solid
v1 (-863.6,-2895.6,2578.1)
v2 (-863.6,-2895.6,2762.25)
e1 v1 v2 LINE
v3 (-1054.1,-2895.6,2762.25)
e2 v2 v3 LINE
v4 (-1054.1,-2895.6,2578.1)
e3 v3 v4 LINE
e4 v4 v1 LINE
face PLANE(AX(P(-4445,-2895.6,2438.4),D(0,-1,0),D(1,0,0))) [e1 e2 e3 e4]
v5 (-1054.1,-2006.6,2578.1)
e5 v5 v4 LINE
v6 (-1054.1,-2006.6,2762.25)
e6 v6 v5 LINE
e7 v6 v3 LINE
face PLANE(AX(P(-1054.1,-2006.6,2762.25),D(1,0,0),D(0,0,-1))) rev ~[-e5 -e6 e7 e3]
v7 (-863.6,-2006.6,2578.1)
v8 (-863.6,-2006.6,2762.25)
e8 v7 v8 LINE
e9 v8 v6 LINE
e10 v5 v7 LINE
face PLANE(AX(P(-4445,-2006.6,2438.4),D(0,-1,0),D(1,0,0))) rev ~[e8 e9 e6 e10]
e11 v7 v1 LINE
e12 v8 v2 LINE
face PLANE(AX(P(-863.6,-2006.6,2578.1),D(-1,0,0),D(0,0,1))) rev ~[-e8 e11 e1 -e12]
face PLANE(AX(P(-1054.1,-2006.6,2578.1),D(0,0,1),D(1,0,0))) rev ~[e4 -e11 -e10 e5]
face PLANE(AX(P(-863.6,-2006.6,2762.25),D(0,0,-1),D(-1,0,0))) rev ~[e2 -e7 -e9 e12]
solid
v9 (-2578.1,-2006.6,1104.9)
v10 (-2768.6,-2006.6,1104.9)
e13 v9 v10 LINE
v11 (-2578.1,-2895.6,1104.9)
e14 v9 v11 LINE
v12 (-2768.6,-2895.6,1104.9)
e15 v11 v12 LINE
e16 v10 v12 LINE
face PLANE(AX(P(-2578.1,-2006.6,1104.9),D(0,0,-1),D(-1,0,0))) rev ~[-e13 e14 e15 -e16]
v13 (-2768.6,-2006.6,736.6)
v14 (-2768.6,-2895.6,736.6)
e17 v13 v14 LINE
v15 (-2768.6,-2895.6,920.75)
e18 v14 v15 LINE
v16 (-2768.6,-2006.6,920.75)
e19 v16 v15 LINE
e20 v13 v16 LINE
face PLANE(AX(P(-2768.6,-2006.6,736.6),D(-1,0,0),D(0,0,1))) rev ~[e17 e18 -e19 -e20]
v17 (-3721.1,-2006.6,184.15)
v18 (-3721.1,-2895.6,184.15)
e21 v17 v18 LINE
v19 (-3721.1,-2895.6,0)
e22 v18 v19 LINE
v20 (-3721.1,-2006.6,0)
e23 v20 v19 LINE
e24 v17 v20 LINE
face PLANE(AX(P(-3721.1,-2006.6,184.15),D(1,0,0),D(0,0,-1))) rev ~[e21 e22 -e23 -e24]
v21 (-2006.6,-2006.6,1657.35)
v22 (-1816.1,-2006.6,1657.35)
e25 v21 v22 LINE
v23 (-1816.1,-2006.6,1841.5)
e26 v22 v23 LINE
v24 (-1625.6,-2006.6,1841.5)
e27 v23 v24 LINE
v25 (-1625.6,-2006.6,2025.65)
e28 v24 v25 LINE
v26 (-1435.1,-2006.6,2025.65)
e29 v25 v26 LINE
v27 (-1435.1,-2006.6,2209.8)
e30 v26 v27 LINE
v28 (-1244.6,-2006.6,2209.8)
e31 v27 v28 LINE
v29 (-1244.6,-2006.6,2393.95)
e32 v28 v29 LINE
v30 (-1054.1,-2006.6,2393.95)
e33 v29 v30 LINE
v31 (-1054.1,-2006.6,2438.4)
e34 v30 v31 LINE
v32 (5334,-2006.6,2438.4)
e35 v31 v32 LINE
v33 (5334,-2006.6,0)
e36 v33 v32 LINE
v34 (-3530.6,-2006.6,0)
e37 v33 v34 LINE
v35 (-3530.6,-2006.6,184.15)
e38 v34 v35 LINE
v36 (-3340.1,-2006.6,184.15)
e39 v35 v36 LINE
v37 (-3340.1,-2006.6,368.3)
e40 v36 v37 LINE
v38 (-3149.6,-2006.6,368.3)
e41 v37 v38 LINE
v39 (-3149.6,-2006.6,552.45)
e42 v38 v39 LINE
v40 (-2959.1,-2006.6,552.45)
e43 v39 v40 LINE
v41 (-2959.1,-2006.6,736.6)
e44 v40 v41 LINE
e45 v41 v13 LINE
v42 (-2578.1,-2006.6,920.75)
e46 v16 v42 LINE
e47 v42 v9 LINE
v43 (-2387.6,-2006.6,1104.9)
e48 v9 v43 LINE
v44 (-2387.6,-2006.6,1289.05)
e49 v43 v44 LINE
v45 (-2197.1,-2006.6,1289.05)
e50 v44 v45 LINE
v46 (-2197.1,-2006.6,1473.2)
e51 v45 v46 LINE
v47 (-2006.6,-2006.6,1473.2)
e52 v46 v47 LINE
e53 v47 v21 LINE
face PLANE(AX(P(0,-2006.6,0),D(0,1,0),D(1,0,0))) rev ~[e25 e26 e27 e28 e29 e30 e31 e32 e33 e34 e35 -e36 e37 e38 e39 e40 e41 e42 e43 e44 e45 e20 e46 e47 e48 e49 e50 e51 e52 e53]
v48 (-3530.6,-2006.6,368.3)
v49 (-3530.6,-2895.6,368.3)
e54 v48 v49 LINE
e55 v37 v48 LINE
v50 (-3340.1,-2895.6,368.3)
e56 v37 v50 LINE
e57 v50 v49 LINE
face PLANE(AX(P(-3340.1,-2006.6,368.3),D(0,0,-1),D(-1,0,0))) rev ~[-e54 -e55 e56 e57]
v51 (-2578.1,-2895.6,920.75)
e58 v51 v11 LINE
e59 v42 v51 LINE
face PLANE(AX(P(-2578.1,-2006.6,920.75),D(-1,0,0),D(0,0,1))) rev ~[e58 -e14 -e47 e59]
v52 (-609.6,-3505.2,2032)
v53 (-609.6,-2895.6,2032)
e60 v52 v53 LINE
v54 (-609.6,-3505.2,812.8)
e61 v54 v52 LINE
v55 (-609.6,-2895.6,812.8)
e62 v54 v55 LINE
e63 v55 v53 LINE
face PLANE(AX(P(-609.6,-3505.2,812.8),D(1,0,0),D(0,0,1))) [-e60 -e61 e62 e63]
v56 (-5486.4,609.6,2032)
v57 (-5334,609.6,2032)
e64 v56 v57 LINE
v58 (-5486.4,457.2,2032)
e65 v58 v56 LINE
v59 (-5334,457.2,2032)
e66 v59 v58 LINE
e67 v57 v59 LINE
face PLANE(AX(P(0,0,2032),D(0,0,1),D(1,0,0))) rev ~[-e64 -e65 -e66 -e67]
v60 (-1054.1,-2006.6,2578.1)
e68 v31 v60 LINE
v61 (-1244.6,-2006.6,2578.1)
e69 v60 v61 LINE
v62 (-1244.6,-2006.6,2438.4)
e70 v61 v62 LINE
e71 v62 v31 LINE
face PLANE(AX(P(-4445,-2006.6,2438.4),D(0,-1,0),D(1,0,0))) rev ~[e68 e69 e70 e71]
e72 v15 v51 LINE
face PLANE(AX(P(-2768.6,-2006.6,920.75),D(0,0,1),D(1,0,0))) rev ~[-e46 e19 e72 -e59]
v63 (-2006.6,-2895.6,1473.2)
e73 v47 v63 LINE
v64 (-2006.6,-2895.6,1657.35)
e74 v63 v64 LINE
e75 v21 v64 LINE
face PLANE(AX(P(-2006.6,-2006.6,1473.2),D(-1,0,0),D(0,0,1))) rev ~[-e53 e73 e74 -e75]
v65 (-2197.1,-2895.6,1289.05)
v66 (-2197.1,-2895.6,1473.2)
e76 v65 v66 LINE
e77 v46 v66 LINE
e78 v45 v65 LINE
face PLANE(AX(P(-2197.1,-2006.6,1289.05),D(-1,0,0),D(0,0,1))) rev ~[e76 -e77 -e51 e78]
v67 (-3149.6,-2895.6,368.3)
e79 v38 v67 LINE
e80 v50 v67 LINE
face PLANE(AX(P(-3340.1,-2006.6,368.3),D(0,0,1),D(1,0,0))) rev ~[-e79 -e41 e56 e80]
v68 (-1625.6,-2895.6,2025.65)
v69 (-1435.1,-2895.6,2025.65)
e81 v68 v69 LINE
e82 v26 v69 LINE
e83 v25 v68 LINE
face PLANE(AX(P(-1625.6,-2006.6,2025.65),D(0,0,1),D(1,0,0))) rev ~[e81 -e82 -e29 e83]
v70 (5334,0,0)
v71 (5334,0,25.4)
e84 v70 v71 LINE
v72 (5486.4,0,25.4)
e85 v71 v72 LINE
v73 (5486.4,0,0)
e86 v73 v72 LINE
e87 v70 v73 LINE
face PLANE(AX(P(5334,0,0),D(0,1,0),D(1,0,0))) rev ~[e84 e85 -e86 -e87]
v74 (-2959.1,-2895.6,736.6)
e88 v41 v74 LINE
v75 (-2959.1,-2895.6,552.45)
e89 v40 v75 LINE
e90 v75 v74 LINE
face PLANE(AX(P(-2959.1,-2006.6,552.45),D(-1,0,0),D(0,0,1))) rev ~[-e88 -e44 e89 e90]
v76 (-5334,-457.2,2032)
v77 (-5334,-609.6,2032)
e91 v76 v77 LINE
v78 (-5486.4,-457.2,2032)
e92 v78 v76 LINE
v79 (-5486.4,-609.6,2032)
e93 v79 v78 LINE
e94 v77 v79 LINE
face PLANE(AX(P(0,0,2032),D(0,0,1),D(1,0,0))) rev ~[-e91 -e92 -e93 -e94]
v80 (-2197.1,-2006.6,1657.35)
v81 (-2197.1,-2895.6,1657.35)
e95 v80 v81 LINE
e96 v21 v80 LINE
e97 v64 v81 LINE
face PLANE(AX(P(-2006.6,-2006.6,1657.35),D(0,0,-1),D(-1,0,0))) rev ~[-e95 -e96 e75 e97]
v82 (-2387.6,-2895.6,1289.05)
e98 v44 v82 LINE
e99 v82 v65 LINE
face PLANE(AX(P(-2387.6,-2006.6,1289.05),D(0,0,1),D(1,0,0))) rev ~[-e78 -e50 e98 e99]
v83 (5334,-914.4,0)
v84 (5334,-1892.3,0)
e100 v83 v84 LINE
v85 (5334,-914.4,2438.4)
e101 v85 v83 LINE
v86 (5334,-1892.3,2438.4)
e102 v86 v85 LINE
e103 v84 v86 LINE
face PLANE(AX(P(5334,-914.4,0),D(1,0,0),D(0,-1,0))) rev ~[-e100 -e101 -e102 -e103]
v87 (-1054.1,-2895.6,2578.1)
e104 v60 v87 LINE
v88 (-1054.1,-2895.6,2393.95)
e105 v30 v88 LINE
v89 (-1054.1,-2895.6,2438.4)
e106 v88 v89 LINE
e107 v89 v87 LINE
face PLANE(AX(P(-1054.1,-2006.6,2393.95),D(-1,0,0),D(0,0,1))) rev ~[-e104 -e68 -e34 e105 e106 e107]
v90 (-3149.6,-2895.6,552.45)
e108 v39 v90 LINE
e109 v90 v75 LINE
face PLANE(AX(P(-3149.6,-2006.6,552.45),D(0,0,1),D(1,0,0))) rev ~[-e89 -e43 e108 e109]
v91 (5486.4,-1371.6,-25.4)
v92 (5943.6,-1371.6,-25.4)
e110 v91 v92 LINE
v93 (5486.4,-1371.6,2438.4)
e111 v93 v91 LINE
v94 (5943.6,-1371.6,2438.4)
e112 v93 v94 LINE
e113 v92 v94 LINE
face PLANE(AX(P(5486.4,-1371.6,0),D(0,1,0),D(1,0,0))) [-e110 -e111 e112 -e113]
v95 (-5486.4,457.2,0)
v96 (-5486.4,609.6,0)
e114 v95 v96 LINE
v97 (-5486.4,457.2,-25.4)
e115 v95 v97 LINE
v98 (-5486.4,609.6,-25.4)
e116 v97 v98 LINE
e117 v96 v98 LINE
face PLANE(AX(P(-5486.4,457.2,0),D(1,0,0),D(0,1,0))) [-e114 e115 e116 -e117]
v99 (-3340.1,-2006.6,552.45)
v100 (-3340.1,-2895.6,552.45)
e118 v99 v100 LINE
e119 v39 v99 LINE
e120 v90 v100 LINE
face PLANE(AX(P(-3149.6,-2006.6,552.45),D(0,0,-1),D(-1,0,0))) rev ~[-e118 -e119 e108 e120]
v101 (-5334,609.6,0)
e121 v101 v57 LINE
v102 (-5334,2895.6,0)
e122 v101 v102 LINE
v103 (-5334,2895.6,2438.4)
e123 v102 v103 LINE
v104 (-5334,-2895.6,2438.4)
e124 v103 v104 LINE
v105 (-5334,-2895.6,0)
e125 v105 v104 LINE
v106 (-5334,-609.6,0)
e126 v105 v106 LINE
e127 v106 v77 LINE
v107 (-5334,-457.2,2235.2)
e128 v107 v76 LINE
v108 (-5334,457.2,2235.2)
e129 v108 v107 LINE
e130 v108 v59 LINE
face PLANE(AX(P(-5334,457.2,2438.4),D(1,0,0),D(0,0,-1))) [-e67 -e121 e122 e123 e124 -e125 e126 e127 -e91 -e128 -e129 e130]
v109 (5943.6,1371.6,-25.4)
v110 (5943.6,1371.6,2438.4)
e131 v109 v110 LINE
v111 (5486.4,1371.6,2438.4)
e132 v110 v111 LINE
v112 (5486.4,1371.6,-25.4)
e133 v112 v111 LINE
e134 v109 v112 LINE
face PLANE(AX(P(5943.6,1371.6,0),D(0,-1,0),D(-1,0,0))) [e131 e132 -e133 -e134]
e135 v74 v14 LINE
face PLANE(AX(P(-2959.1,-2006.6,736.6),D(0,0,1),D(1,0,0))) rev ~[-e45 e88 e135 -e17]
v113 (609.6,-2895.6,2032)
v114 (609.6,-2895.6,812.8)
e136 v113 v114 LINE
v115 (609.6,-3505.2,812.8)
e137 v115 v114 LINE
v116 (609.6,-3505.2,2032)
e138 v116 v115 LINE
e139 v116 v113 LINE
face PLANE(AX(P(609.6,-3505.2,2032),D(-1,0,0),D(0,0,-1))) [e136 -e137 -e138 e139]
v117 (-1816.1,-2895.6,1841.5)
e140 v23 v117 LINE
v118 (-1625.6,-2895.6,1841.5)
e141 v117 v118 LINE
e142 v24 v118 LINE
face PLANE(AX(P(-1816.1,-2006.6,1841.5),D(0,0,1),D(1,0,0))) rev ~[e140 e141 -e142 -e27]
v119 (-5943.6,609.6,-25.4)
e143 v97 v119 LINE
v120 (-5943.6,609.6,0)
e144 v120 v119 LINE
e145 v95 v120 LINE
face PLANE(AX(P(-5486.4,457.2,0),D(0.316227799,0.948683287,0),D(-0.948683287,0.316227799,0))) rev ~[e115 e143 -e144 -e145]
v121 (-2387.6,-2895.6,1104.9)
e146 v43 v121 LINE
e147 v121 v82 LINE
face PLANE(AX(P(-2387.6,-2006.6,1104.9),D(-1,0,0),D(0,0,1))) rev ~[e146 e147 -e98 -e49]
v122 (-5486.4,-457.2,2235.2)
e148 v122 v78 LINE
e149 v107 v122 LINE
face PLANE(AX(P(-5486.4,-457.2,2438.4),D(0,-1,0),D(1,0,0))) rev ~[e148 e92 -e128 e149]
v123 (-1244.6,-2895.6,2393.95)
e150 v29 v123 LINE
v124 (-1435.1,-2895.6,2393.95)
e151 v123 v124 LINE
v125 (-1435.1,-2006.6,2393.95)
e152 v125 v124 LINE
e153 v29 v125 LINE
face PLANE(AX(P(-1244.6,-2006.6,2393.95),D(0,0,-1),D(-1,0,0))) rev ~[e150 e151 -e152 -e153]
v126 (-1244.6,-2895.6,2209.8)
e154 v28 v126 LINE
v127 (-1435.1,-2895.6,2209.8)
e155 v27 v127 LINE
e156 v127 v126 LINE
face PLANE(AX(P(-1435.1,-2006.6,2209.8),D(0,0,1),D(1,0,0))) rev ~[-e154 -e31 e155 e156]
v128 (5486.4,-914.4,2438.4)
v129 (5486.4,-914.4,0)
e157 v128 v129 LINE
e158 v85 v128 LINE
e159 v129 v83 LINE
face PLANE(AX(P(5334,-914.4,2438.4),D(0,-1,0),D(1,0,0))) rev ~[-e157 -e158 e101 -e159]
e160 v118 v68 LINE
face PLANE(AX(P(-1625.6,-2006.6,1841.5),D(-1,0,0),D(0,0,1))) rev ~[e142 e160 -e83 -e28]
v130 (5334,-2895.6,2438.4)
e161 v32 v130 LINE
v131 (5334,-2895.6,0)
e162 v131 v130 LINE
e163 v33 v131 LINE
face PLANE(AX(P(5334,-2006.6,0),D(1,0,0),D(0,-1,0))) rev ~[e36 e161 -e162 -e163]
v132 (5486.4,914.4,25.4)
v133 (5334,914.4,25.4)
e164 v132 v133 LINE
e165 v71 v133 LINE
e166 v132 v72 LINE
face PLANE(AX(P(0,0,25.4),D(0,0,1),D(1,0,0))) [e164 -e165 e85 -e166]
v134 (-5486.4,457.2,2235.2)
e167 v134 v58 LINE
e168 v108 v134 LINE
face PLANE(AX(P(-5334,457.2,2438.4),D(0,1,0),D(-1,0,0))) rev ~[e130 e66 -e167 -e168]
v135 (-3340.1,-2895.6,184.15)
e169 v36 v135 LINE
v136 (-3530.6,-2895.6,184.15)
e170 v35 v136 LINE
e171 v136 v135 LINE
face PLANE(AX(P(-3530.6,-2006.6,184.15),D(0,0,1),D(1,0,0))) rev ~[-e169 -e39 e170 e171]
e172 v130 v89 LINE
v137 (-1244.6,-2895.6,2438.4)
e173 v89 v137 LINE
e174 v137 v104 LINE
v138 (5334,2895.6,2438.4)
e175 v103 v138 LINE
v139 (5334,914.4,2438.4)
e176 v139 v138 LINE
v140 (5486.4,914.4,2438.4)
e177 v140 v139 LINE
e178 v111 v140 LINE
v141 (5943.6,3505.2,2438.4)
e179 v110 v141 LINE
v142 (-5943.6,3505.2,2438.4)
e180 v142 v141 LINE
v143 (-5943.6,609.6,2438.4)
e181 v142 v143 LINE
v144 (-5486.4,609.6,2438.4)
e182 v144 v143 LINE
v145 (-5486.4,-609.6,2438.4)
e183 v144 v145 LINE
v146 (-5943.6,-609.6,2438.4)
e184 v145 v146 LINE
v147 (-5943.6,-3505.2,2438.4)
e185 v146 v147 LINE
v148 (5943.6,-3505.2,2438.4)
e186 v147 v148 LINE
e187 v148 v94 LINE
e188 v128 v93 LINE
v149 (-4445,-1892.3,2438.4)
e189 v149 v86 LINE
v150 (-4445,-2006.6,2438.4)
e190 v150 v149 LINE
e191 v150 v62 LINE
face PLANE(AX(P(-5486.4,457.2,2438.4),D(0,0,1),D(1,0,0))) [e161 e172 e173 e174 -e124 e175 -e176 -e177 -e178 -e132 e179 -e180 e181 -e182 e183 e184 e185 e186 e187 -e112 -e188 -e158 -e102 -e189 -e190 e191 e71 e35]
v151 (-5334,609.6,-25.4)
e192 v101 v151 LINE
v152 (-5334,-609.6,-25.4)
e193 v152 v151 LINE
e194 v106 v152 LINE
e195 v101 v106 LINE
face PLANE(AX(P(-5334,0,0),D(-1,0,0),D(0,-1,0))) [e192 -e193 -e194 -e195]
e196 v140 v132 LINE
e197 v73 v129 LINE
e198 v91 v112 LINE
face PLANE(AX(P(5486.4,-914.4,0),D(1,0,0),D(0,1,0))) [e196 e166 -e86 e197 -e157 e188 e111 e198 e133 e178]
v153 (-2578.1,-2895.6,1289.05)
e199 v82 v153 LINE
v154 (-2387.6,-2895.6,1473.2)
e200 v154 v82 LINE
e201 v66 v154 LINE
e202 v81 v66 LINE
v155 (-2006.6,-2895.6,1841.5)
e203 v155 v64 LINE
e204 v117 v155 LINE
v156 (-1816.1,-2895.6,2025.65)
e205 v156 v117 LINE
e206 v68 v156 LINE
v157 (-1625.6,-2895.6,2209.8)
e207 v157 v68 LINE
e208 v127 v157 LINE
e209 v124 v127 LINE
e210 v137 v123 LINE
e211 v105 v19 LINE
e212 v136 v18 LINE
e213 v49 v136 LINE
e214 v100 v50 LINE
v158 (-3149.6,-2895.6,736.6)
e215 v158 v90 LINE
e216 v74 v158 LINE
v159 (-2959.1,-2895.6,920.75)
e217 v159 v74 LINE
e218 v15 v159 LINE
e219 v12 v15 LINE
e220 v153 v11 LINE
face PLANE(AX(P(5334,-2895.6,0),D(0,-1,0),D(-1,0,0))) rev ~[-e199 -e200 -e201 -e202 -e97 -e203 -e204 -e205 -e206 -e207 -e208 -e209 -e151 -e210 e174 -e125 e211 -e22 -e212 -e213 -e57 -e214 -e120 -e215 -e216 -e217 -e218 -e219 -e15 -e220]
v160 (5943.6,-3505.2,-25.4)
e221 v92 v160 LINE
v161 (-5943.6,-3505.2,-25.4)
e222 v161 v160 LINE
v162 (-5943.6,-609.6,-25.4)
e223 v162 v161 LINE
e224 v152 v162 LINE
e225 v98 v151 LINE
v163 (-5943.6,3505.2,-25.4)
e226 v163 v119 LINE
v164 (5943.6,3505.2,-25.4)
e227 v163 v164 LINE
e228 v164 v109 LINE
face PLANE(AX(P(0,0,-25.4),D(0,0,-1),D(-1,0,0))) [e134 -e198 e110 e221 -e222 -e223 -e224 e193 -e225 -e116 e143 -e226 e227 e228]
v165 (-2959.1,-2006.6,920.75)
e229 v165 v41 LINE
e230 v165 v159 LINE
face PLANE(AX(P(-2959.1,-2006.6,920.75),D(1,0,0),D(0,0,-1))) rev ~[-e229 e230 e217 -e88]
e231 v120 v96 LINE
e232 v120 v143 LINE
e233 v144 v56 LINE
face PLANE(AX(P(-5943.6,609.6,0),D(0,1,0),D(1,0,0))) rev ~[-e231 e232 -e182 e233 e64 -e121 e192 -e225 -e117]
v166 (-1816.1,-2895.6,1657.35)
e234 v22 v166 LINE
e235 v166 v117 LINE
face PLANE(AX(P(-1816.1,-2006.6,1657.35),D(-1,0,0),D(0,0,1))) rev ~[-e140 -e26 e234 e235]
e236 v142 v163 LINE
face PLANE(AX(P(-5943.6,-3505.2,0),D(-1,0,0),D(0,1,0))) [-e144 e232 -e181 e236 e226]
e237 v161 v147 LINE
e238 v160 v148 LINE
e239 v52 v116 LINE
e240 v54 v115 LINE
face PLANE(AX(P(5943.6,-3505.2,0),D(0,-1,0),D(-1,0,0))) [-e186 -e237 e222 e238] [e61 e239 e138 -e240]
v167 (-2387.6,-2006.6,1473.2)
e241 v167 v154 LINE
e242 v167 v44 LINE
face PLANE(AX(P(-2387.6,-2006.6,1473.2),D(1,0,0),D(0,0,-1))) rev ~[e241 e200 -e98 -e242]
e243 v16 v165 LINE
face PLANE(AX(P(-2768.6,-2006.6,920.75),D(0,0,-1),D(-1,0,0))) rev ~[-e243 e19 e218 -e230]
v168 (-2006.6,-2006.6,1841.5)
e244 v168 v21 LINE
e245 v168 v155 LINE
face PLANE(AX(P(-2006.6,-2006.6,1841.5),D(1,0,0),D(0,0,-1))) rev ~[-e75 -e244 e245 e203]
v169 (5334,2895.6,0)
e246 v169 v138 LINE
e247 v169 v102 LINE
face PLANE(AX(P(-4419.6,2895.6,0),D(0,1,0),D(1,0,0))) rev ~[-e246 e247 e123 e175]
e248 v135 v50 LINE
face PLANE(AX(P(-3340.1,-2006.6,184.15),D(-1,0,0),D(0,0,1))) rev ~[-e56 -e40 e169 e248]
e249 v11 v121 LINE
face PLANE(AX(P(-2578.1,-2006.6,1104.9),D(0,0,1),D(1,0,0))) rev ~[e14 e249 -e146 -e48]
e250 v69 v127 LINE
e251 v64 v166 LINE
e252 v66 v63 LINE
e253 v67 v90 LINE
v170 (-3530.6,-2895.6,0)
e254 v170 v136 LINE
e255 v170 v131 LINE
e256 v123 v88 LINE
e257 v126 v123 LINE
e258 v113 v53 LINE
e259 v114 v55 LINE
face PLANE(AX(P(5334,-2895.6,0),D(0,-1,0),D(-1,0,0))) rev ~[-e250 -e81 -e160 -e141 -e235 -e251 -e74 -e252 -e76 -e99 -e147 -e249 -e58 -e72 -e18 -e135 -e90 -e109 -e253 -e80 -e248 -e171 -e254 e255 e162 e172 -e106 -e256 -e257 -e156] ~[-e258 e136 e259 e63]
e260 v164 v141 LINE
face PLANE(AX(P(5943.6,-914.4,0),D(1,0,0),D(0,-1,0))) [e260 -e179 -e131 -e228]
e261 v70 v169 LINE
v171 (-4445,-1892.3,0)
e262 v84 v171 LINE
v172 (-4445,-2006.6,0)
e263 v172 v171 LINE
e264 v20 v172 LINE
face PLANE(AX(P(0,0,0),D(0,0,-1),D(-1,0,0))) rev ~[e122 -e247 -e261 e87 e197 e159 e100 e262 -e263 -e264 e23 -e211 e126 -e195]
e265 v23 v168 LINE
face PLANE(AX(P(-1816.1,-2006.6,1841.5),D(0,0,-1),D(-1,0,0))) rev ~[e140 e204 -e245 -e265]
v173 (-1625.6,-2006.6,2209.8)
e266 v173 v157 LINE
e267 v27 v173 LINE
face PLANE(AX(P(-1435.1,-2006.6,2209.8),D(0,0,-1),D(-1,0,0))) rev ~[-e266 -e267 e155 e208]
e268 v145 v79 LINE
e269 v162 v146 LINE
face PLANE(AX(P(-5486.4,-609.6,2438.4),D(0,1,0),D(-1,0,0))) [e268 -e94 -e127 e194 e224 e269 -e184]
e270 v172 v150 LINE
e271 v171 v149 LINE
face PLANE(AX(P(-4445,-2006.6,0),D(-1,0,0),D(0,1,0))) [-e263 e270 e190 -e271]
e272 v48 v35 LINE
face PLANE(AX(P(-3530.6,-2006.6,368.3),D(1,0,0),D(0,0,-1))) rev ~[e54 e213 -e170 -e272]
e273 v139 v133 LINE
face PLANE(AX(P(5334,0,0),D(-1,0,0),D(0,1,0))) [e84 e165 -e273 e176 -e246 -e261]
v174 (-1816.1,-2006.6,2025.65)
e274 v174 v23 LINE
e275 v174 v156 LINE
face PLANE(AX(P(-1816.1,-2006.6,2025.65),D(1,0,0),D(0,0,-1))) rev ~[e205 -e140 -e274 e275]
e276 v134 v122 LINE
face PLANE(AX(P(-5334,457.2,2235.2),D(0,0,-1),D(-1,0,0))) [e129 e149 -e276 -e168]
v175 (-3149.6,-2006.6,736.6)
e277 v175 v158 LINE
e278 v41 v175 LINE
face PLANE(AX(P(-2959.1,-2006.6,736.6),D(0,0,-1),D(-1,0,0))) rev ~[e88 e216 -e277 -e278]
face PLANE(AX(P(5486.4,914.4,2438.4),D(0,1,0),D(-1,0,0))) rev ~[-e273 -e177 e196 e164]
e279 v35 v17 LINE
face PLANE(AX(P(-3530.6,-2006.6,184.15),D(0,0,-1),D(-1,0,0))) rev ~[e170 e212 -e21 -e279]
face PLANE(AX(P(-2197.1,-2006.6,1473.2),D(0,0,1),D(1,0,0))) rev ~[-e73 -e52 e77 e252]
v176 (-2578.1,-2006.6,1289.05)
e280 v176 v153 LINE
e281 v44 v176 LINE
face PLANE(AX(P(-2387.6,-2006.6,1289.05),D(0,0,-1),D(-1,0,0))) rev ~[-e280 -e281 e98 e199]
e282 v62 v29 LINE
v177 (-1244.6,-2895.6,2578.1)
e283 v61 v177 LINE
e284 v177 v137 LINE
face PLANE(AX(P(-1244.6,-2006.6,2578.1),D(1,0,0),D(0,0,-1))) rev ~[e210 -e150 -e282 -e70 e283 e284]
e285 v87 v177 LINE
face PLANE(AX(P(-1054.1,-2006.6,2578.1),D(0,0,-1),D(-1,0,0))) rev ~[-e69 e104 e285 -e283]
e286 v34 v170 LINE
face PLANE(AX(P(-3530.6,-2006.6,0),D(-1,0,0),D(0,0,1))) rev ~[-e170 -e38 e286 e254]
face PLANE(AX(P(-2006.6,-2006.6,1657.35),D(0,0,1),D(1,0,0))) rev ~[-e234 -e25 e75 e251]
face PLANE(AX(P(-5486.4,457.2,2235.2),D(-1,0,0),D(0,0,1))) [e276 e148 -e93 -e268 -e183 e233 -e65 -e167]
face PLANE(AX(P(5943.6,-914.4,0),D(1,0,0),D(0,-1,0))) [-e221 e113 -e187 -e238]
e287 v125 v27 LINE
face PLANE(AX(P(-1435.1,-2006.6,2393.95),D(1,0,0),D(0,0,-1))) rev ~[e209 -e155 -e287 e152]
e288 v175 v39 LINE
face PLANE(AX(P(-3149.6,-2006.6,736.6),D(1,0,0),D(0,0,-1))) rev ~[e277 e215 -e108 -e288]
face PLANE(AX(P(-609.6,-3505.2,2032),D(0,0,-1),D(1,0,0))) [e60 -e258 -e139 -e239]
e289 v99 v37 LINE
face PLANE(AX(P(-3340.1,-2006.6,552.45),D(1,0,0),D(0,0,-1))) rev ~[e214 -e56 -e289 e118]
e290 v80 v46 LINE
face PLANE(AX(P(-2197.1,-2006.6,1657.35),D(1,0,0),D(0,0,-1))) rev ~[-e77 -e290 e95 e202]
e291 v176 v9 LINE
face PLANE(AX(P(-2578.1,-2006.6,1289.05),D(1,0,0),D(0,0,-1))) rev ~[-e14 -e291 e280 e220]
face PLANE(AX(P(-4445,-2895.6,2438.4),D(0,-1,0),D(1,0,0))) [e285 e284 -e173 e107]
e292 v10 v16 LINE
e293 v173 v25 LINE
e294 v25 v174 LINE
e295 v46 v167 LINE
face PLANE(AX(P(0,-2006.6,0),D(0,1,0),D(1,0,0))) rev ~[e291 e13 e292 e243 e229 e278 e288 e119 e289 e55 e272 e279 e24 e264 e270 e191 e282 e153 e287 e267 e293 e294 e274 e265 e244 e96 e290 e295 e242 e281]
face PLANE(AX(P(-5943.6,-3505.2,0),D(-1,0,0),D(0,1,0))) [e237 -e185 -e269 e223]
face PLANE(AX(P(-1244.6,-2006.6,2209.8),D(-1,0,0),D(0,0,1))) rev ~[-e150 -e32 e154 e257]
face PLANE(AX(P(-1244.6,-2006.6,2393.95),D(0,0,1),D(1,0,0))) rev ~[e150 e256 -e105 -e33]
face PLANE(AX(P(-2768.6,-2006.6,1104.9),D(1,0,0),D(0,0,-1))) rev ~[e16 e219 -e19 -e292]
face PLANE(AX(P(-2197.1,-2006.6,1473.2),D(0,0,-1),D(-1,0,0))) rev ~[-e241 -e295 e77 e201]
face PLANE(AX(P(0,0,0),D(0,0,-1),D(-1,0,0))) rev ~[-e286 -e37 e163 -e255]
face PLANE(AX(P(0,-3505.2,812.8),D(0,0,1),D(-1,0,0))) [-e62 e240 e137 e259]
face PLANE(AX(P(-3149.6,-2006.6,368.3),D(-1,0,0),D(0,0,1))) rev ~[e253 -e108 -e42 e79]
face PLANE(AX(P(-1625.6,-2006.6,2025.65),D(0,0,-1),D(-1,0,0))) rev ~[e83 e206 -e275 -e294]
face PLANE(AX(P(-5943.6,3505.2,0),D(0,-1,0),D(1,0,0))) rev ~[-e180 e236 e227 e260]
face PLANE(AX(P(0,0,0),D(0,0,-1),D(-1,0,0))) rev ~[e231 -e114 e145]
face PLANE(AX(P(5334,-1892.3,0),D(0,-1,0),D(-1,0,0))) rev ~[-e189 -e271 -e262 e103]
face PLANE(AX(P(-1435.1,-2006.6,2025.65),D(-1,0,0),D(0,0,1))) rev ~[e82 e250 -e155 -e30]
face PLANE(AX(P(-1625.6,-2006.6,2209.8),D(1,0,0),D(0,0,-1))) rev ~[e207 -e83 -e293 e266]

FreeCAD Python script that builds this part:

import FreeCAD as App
import Part
import Sketcher
Q = App.Units.Quantity


def add_polygon(sketch, points):
    """Adds a closed chain of lines whose ends are joined by coincident constraints."""
    first, n = sketch.GeometryCount, len(points)
    for a, b in zip(points, points[1:] + points[:1]):
        sketch.addGeometry(Part.LineSegment(App.Vector(*a, 0), App.Vector(*b, 0)), False)
    for i in range(n):
        sketch.addConstraint(Sketcher.Constraint("Coincident", first + i, 2, first + (i + 1) % n, 1))

doc = App.newDocument("Part")
params = doc.addObject("Spreadsheet::Sheet", "Params")
for row, (alias, value) in enumerate([
    ("sketch1_width", "24 in"),
    ("sketch1_width2", "468 in"),
    ("sketch1_height", "35 in"),
    ("sketch1_height2", "114 in"),
    ("sketch1_height3", "102 in"),
    ("pad1_length", "96 in"),
    ("sketch2_width", "468 in"),
    ("sketch2_height", "276 in"),
    ("pad2_length", "1 in"),
    ("sketch3_width", "24 in"),
    ("sketch3_height", "72 in"),
    ("sketch3_height2", "48 in"),
    ("pad3_length", "16 in"),
    ("sketch4_width", "7.5 in"),
    ("sketch4_height", "7.25 in"),
    ("pad4_length", "35 in"),
    ("sketch5_width", "48 in"),
    ("pocket1_length", "24 in"),
    ("sketch6_height", "1 in"),
    ("sketch6_width", "24 in"),
    ("pad5_length", "1 in"),
    ("sketch7_width", "17 in"),
    ("pad6_length", "1 in"),
    ("sketch8_width", "18 in"),
    ("sketch8_height", "108 in"),
    ("pocket2_length", "96 in"),
    ("sketch9_width", "17 in"),
    ("pad7_length", "1 in"),
    ("sketch10_width", "6 in"),
    ("sketch10_height", "72 in"),
    ("pocket3_length", "17 in"),
    ("sketch11_width", "6 in"),
    ("sketch11_width2", "18 in"),
    ("sketch11_height", "36 in"),
    ("pocket4_length", "16 in"),
    ("sketch12_width", "6 in"),
    ("sketch12_height", "8 in"),
    ("pad8_length", "36 in"),
    ("sketch13_width", "17 in"),
    ("pocket5_length", "1 in"),
    ("sketch14_width", "6 in"),
    ("sketch14_height", "36 in"),
    ("pad9_length", "1 in"),
    ("sketch15_width", "18 in"),
    ("sketch15_height", "108 in"),
    ("pocket6_length", "1 in"),
    ("sketch16_width", "6 in"),
    ("sketch16_width2", "24 in"),
    ("pocket7_length", "1 in"),
], start=1):
    params.set(f"A{row}", alias)
    params.set(f"B{row}", "=" + value)
    params.setAlias(f"B{row}", alias)

body = doc.addObject("PartDesign::Body", "Body")
body.AllowCompound = True

# Sketch on XY plane
sketch1 = body.newObject("Sketcher::SketchObject", "Sketch")
sketch1.AttachmentSupport = (doc.getObject("XY_Plane"), [""])
sketch1.MapMode = "FlatFace"
add_polygon(sketch1, [(5334, -1892.3), (-4445, -1892.3), (-4445, -2006.6), (5334, -2006.6), (5334, -2895.6), (-5334, -2895.6), (-5334, -609.6), (-5943.6, -609.6), (-5943.6, -3505.2), (5943.6, -3505.2), (5943.6, -914.4), (5334, -914.4)])  # lines 0-11
add_polygon(sketch1, [(-5943.6, 3505.2), (-5943.6, 609.6), (-5334, 609.6), (-5334, 2895.6), (5334, 2895.6), (5334, 914.4), (5943.6, 914.4), (5943.6, 3505.2)])  # lines 12-19
sketch1.addConstraint([
    Sketcher.Constraint("Horizontal", 0),
    Sketcher.Constraint("Vertical", 1),
    Sketcher.Constraint("Horizontal", 2),
    Sketcher.Constraint("Vertical", 3),
    Sketcher.Constraint("Horizontal", 4),
    Sketcher.Constraint("Vertical", 5),
    Sketcher.Constraint("Horizontal", 6),
    Sketcher.Constraint("Vertical", 7),
    Sketcher.Constraint("Horizontal", 8),
    Sketcher.Constraint("Vertical", 9),
    Sketcher.Constraint("Horizontal", 10),
    Sketcher.Constraint("Vertical", 11),
    Sketcher.Constraint("Vertical", 12),
    Sketcher.Constraint("Horizontal", 13),
    Sketcher.Constraint("Vertical", 14),
    Sketcher.Constraint("Horizontal", 15),
    Sketcher.Constraint("Vertical", 16),
    Sketcher.Constraint("Horizontal", 17),
    Sketcher.Constraint("Vertical", 18),
    Sketcher.Constraint("Horizontal", 19),
    Sketcher.Constraint("Symmetric", 3, 2, 14, 2, -1, 1),
    Sketcher.Constraint("Symmetric", 7, 2, 18, 2, -1, 1),
    Sketcher.Constraint("Symmetric", 6, 2, 12, 2, -1),
    Sketcher.Constraint("Symmetric", 10, 2, 16, 2, -1),
    Sketcher.Constraint("Vertical", 3, 2, 10, 2),
    Sketcher.Constraint("Vertical", 5, 2, 13, 2),
    Sketcher.Constraint("Vertical", 9, 2, 17, 2),
    Sketcher.Constraint("DistanceX", 6, 2, 6, 1, Q("24 in")),
    Sketcher.Constraint("DistanceX", 8, 1, 8, 2, Q("468 in")),
    Sketcher.Constraint("DistanceY", 3, 2, 3, 1, Q("35 in")),
    Sketcher.Constraint("DistanceY", 7, 2, 7, 1, Q("114 in")),
    Sketcher.Constraint("DistanceY", 9, 1, 9, 2, Q("102 in")),
    Sketcher.Constraint("DistanceY", 1, 2, 1, 1, Q("4.5 in")),
    Sketcher.Constraint("DistanceY", 3, 2, -1, 1, Q("114 in")),
    Sketcher.Constraint("DistanceY", 5, 2, -1, 1, Q("24 in")),
    Sketcher.Constraint("DistanceX", 4, 2, 1, 2, Q("35 in")),
])
sketch1.setExpression("Constraints[47]", "Params.sketch1_width")
sketch1.setExpression("Constraints[48]", "Params.sketch1_width2")
sketch1.setExpression("Constraints[49]", "Params.sketch1_height")
sketch1.setExpression("Constraints[50]", "Params.sketch1_height2")
sketch1.setExpression("Constraints[51]", "Params.sketch1_height3")
pad1 = body.newObject("PartDesign::Pad", "Pad")
pad1.Profile = sketch1
pad1.setExpression("Length", "Params.pad1_length")

# Sketch on XY plane
sketch2 = body.newObject("Sketcher::SketchObject", "Sketch001")
sketch2.AttachmentSupport = (doc.getObject("XY_Plane"), [""])
sketch2.MapMode = "FlatFace"
add_polygon(sketch2, [(-5943.6, 3505.2), (5943.6, 3505.2), (5943.6, -3505.2), (-5943.6, -3505.2)])  # lines 0-3
sketch2.addConstraint([
    Sketcher.Constraint("Horizontal", 0),
    Sketcher.Constraint("Vertical", 1),
    Sketcher.Constraint("Horizontal", 2),
    Sketcher.Constraint("Vertical", 3),
    Sketcher.Constraint("Symmetric", 0, 2, 2, 2, -1, 1),
    Sketcher.Constraint("DistanceX", 0, 1, 0, 2, Q("468 in")),
    Sketcher.Constraint("DistanceY", 1, 2, 1, 1, Q("276 in")),
])
sketch2.setExpression("Constraints[9]", "Params.sketch2_width")
sketch2.setExpression("Constraints[10]", "Params.sketch2_height")
pad2 = body.newObject("PartDesign::Pad", "Pad001")
pad2.Profile = sketch2
pad2.setExpression("Length", "Params.pad2_length")
pad2.Reversed = True

# Sketch on XY plane
sketch3 = body.newObject("Sketcher::SketchObject", "Sketch002")
sketch3.AttachmentSupport = (doc.getObject("XY_Plane"), [""])
sketch3.MapMode = "FlatFace"
sketch3.AttachmentOffset = App.Placement(App.Vector(0, 0, 96 * 25.4), App.Rotation())
add_polygon(sketch3, [(5943.6, -914.4), (5943.6, 914.4), (5334, 914.4), (5334, -914.4)])  # lines 0-3
add_polygon(sketch3, [(-5334, 609.6), (-5943.6, 609.6), (-5943.6, -609.6), (-5334, -609.6)])  # lines 4-7
sketch3.addConstraint([
    Sketcher.Constraint("Vertical", 0),
    Sketcher.Constraint("Horizontal", 1),
    Sketcher.Constraint("Vertical", 2),
    Sketcher.Constraint("Horizontal", 3),
    Sketcher.Constraint("Horizontal", 4),
    Sketcher.Constraint("Vertical", 5),
    Sketcher.Constraint("Horizontal", 6),
    Sketcher.Constraint("Vertical", 7),
    Sketcher.Constraint("Equal", 3, 4),
    Sketcher.Constraint("DistanceX", 1, 2, 1, 1, Q("24 in")),
    Sketcher.Constraint("DistanceY", 0, 1, 0, 2, Q("72 in")),
    Sketcher.Constraint("DistanceY", 5, 2, 5, 1, Q("48 in")),
    Sketcher.Constraint("DistanceX", -1, 1, 0, 2, Q("234 in")),
    Sketcher.Constraint("DistanceY", -1, 1, 0, 2, Q("36 in")),
    Sketcher.Constraint("DistanceX", 4, 2, -1, 1, Q("234 in")),
    Sketcher.Constraint("DistanceY", -1, 1, 4, 2, Q("24 in")),
])
sketch3.setExpression("Constraints[17]", "Params.sketch3_width")
sketch3.setExpression("Constraints[18]", "Params.sketch3_height")
sketch3.setExpression("Constraints[19]", "Params.sketch3_height2")
pad3 = body.newObject("PartDesign::Pad", "Pad002")
pad3.Profile = sketch3
pad3.setExpression("Length", "Params.pad3_length")
pad3.Reversed = True

# Sketch on XZ plane
sketch4 = body.newObject("Sketcher::SketchObject", "Sketch003")
sketch4.AttachmentSupport = (doc.getObject("XZ_Plane"), [""])
sketch4.MapMode = "FlatFace"
sketch4.AttachmentOffset = App.Placement(App.Vector(0, 0, 79 * 25.4), App.Rotation())
add_polygon(sketch4, [(-3721.1, 184.15), (-3721.1, 0), (-3530.6, 0), (-3530.6, 184.15)])  # lines 0-3
add_polygon(sketch4, [(-1054.1, 2762.25), (-1054.1, 2578.1), (-863.6, 2578.1), (-863.6, 2762.25)])  # lines 4-7
add_polygon(sketch4, [(-1244.6, 2578.1), (-1244.6, 2393.95), (-1054.1, 2393.95), (-1054.1, 2578.1)])  # lines 8-11
add_polygon(sketch4, [(-1435.1, 2393.95), (-1435.1, 2209.8), (-1244.6, 2209.8), (-1244.6, 2393.95)])  # lines 12-15
add_polygon(sketch4, [(-1625.6, 2209.8), (-1625.6, 2025.65), (-1435.1, 2025.65), (-1435.1, 2209.8)])  # lines 16-19
add_polygon(sketch4, [(-1816.1, 2025.65), (-1816.1, 1841.5), (-1625.6, 1841.5), (-1625.6, 2025.65)])  # lines 20-23
add_polygon(sketch4, [(-2006.6, 1841.5), (-2006.6, 1657.35), (-1816.1, 1657.35), (-1816.1, 1841.5)])  # lines 24-27
add_polygon(sketch4, [(-2197.1, 1657.35), (-2197.1, 1473.2), (-2006.6, 1473.2), (-2006.6, 1657.35)])  # lines 28-31
add_polygon(sketch4, [(-2387.6, 1473.2), (-2387.6, 1289.05), (-2197.1, 1289.05), (-2197.1, 1473.2)])  # lines 32-35
add_polygon(sketch4, [(-2578.1, 1289.05), (-2578.1, 1104.9), (-2387.6, 1104.9), (-2387.6, 1289.05)])  # lines 36-39
add_polygon(sketch4, [(-2768.6, 1104.9), (-2768.6, 920.75), (-2578.1, 920.75), (-2578.1, 1104.9)])  # lines 40-43
add_polygon(sketch4, [(-2959.1, 920.75), (-2959.1, 736.6), (-2768.6, 736.6), (-2768.6, 920.75)])  # lines 44-47
add_polygon(sketch4, [(-3149.6, 736.6), (-3149.6, 552.45), (-2959.1, 552.45), (-2959.1, 736.6)])  # lines 48-51
add_polygon(sketch4, [(-3340.1, 552.45), (-3340.1, 368.3), (-3149.6, 368.3), (-3149.6, 552.45)])  # lines 52-55
add_polygon(sketch4, [(-3530.6, 368.3), (-3530.6, 184.15), (-3340.1, 184.15), (-3340.1, 368.3)])  # lines 56-59
sketch4.addConstraint([
    Sketcher.Constraint("Vertical", 0),
    Sketcher.Constraint("Horizontal", 1),
    Sketcher.Constraint("Vertical", 2),
    Sketcher.Constraint("Horizontal", 3),
    Sketcher.Constraint("Vertical", 4),
    Sketcher.Constraint("Horizontal", 5),
    Sketcher.Constraint("Vertical", 6),
    Sketcher.Constraint("Horizontal", 7),
    Sketcher.Constraint("Vertical", 8),
    Sketcher.Constraint("Horizontal", 9),
    Sketcher.Constraint("Vertical", 10),
    Sketcher.Constraint("Horizontal", 11),
    Sketcher.Constraint("Vertical", 12),
    Sketcher.Constraint("Horizontal", 13),
    Sketcher.Constraint("Vertical", 14),
    Sketcher.Constraint("Horizontal", 15),
    Sketcher.Constraint("Vertical", 16),
    Sketcher.Constraint("Horizontal", 17),
    Sketcher.Constraint("Vertical", 18),
    Sketcher.Constraint("Horizontal", 19),
    Sketcher.Constraint("Vertical", 20),
    Sketcher.Constraint("Horizontal", 21),
    Sketcher.Constraint("Vertical", 22),
    Sketcher.Constraint("Horizontal", 23),
    Sketcher.Constraint("Vertical", 24),
    Sketcher.Constraint("Horizontal", 25),
    Sketcher.Constraint("Vertical", 26),
    Sketcher.Constraint("Horizontal", 27),
    Sketcher.Constraint("Vertical", 28),
    Sketcher.Constraint("Horizontal", 29),
    Sketcher.Constraint("Vertical", 30),
    Sketcher.Constraint("Horizontal", 31),
    Sketcher.Constraint("Vertical", 32),
    Sketcher.Constraint("Horizontal", 33),
    Sketcher.Constraint("Vertical", 34),
    Sketcher.Constraint("Horizontal", 35),
    Sketcher.Constraint("Vertical", 36),
    Sketcher.Constraint("Horizontal", 37),
    Sketcher.Constraint("Vertical", 38),
    Sketcher.Constraint("Horizontal", 39),
    Sketcher.Constraint("Vertical", 40),
    Sketcher.Constraint("Horizontal", 41),
    Sketcher.Constraint("Vertical", 42),
    Sketcher.Constraint("Horizontal", 43),
    Sketcher.Constraint("Vertical", 44),
    Sketcher.Constraint("Horizontal", 45),
    Sketcher.Constraint("Vertical", 46),
    Sketcher.Constraint("Horizontal", 47),
    Sketcher.Constraint("Vertical", 48),
    Sketcher.Constraint("Horizontal", 49),
    Sketcher.Constraint("Vertical", 50),
    Sketcher.Constraint("Horizontal", 51),
    Sketcher.Constraint("Vertical", 52),
    Sketcher.Constraint("Horizontal", 53),
    Sketcher.Constraint("Vertical", 54),
    Sketcher.Constraint("Horizontal", 55),
    Sketcher.Constraint("Vertical", 56),
    Sketcher.Constraint("Horizontal", 57),
    Sketcher.Constraint("Vertical", 58),
    Sketcher.Constraint("Horizontal", 59),
    Sketcher.Constraint("Coincident", 10, 2, 4, 2),
    Sketcher.Constraint("Coincident", 14, 2, 8, 2),
    Sketcher.Constraint("Coincident", 18, 2, 12, 2),
    Sketcher.Constraint("Coincident", 22, 2, 16, 2),
    Sketcher.Constraint("Coincident", 26, 2, 20, 2),
    Sketcher.Constraint("Coincident", 30, 2, 24, 2),
    Sketcher.Constraint("Coincident", 34, 2, 28, 2),
    Sketcher.Constraint("Coincident", 38, 2, 32, 2),
    Sketcher.Constraint("Coincident", 42, 2, 36, 2),
    Sketcher.Constraint("Coincident", 46, 2, 40, 2),
    Sketcher.Constraint("Coincident", 50, 2, 44, 2),
    Sketcher.Constraint("Coincident", 54, 2, 48, 2),
    Sketcher.Constraint("Coincident", 56, 2, 2, 2),
    Sketcher.Constraint("Coincident", 58, 2, 52, 2),
    Sketcher.Constraint("PointOnObject", 0, 2, -1),
    Sketcher.Constraint("Equal", 3, 5),
    Sketcher.Constraint("Equal", 7, 9),
    Sketcher.Constraint("Equal", 11, 13),
    Sketcher.Constraint("Equal", 15, 17),
    Sketcher.Constraint("Equal", 19, 21),
    Sketcher.Constraint("Equal", 23, 25),
    Sketcher.Constraint("Equal", 27, 29),
    Sketcher.Constraint("Equal", 31, 33),
    Sketcher.Constraint("Equal", 35, 37),
    Sketcher.Constraint("Equal", 39, 41),
    Sketcher.Constraint("Equal", 43, 45),
    Sketcher.Constraint("Equal", 47, 49),
    Sketcher.Constraint("Equal", 51, 53),
    Sketcher.Constraint("Equal", 55, 57),
    Sketcher.Constraint("Equal", 2, 4),
    Sketcher.Constraint("Equal", 6, 8),
    Sketcher.Constraint("Equal", 10, 12),
    Sketcher.Constraint("Equal", 14, 16),
    Sketcher.Constraint("Equal", 18, 20),
    Sketcher.Constraint("Equal", 22, 24),
    Sketcher.Constraint("Equal", 26, 28),
    Sketcher.Constraint("Equal", 30, 32),
    Sketcher.Constraint("Equal", 34, 36),
    Sketcher.Constraint("Equal", 38, 40),
    Sketcher.Constraint("Equal", 42, 44),
    Sketcher.Constraint("Equal", 46, 48),
    Sketcher.Constraint("Equal", 50, 52),
    Sketcher.Constraint("Equal", 54, 56),
    Sketcher.Constraint("DistanceX", 1, 1, 1, 2, Q("7.5 in")),
    Sketcher.Constraint("DistanceY", 0, 2, 0, 1, Q("7.25 in")),
    Sketcher.Constraint("DistanceX", 1, 2, -1, 1, Q("139 in")),
])
sketch4.setExpression("Constraints[163]", "Params.sketch4_width")
sketch4.setExpression("Constraints[164]", "Params.sketch4_height")
pad4 = body.newObject("PartDesign::Pad", "Pad003")
pad4.Profile = sketch4
pad4.setExpression("Length", "Params.pad4_length")

# Sketch on XZ plane
sketch5 = body.newObject("Sketcher::SketchObject", "Sketch004")
sketch5.AttachmentSupport = (doc.getObject("XZ_Plane"), [""])
sketch5.MapMode = "FlatFace"
sketch5.AttachmentOffset = App.Placement(App.Vector(0, 0, 138 * 25.4), App.Rotation())
add_polygon(sketch5, [(-609.6, 2032), (-609.6, 812.8), (609.6, 812.8), (609.6, 2032)])  # lines 0-3
sketch5.addConstraint([
    Sketcher.Constraint("Vertical", 0),
    Sketcher.Constraint("Horizontal", 1),
    Sketcher.Constraint("Vertical", 2),
    Sketcher.Constraint("Horizontal", 3),
    Sketcher.Constraint("Equal", 3, 0),
    Sketcher.Constraint("DistanceX", 1, 1, 1, 2, Q("48 in")),
    Sketcher.Constraint("DistanceY", -1, 1, 0, 2, Q("32 in")),
    Sketcher.Constraint("DistanceX", 0, 2, -1, 1, Q("24 in")),
])
sketch5.setExpression("Constraints[9]", "Params.sketch5_width")
pocket1 = body.newObject("PartDesign::Pocket", "Pocket")
pocket1.Profile = sketch5
pocket1.setExpression("Length", "Params.pocket1_length")

# Sketch on XY plane
sketch6 = body.newObject("Sketcher::SketchObject", "Sketch005")
sketch6.AttachmentSupport = (doc.getObject("XY_Plane"), [""])
sketch6.MapMode = "FlatFace"
sketch6.AttachmentOffset = App.Placement(App.Vector(0, 0, 80 * 25.4), App.Rotation())
add_polygon(sketch6, [(5943.6, -12.7), (5334, -12.7), (5334, 12.7), (5943.6, 12.7)])  # lines 0-3
sketch6.addConstraint([
    Sketcher.Constraint("Horizontal", 0),
    Sketcher.Constraint("Vertical", 1),
    Sketcher.Constraint("Horizontal", 2),
    Sketcher.Constraint("Vertical", 3),
    Sketcher.Constraint("DistanceY", 1, 1, 1, 2, Q("1 in")),
    Sketcher.Constraint("DistanceX", 0, 2, 0, 1, Q("24 in")),
    Sketcher.Constraint("DistanceX", -1, 1, 0, 2, Q("210 in")),
    Sketcher.Constraint("DistanceY", 0, 2, -1, 1, Q("0.5 in")),
])
sketch6.setExpression("Constraints[8]", "Params.sketch6_height")
sketch6.setExpression("Constraints[9]", "Params.sketch6_width")
pad5 = body.newObject("PartDesign::Pad", "Pad004")
pad5.Profile = sketch6
pad5.setExpression("Length", "Params.pad5_length")
pad5.Reversed = True

# Sketch on XY plane
sketch7 = body.newObject("Sketcher::SketchObject", "Sketch006")
sketch7.AttachmentSupport = (doc.getObject("XY_Plane"), [""])
sketch7.MapMode = "FlatFace"
add_polygon(sketch7, [(5549.9, -673.1), (5118.1, -241.3), (5118.1, -673.1)])  # lines 0-2
add_polygon(sketch7, [(5549.9, 241.3), (5118.1, 673.1), (5118.1, 241.3)])  # lines 3-5
sketch7.addConstraint([
    Sketcher.Constraint("Vertical", 1),
    Sketcher.Constraint("Horizontal", 2),
    Sketcher.Constraint("Vertical", 4),
    Sketcher.Constraint("Horizontal", 5),
    Sketcher.Constraint("Symmetric", 1, 2, 3, 2, -1),
    Sketcher.Constraint("Parallel", 0, 3),
    Sketcher.Constraint("Vertical", 2, 2, 5, 2),
    Sketcher.Constraint("Equal", 5, 1),
    Sketcher.Constraint("DistanceX", 2, 1, 2, 2, Q("17 in")),
    Sketcher.Constraint("DistanceY", 0, 2, 3, 2, Q("36 in")),
    Sketcher.Constraint("DistanceX", -1, 1, 0, 2, Q("201.5 in")),
])
sketch7.setExpression("Constraints[14]", "Params.sketch7_width")
pad6 = body.newObject("PartDesign::Pad", "Pad005")
pad6.Profile = sketch7
pad6.setExpression("Length", "Params.pad6_length")

# Sketch on XY plane
sketch8 = body.newObject("Sketcher::SketchObject", "Sketch007")
sketch8.AttachmentSupport = (doc.getObject("XY_Plane"), [""])
sketch8.MapMode = "FlatFace"
add_polygon(sketch8, [(5943.6, 1371.6), (5486.4, 1371.6), (5486.4, -1371.6), (5943.6, -1371.6)])  # lines 0-3
sketch8.addConstraint([
    Sketcher.Constraint("Horizontal", 0),
    Sketcher.Constraint("Vertical", 1),
    Sketcher.Constraint("Horizontal", 2),
    Sketcher.Constraint("Vertical", 3),
    Sketcher.Constraint("DistanceX", 0, 2, 0, 1, Q("18 in")),
    Sketcher.Constraint("DistanceY", 1, 2, 1, 1, Q("108 in")),
    Sketcher.Constraint("DistanceX", -1, 1, 0, 2, Q("216 in")),
    Sketcher.Constraint("DistanceY", -1, 1, 0, 2, Q("54 in")),
])
sketch8.setExpression("Constraints[8]", "Params.sketch8_width")
sketch8.setExpression("Constraints[9]", "Params.sketch8_height")
pocket2 = body.newObject("PartDesign::Pocket", "Pocket001")
pocket2.Profile = sketch8
pocket2.setExpression("Length", "Params.pocket2_length")
pocket2.Reversed = True

# Sketch on XY plane
sketch9 = body.newObject("Sketcher::SketchObject", "Sketch008")
sketch9.AttachmentSupport = (doc.getObject("XY_Plane"), [""])
sketch9.MapMode = "FlatFace"
add_polygon(sketch9, [(5549.9, -673.1), (5118.1, -241.3), (5118.1, -673.1)])  # lines 0-2
add_polygon(sketch9, [(5549.9, 241.3), (5118.1, 673.1), (5118.1, 241.3)])  # lines 3-5
sketch9.addConstraint([
    Sketcher.Constraint("Vertical", 1),
    Sketcher.Constraint("Horizontal", 2),
    Sketcher.Constraint("Vertical", 4),
    Sketcher.Constraint("Horizontal", 5),
    Sketcher.Constraint("Symmetric", 1, 2, 3, 2, -1),
    Sketcher.Constraint("Parallel", 0, 3),
    Sketcher.Constraint("Vertical", 2, 2, 5, 2),
    Sketcher.Constraint("Equal", 5, 1),
    Sketcher.Constraint("DistanceX", 2, 1, 2, 2, Q("17 in")),
    Sketcher.Constraint("DistanceY", 0, 2, 3, 2, Q("36 in")),
    Sketcher.Constraint("DistanceX", -1, 1, 0, 2, Q("201.5 in")),
])
sketch9.setExpression("Constraints[14]", "Params.sketch9_width")
pad7 = body.newObject("PartDesign::Pad", "Pad006")
pad7.Profile = sketch9
pad7.setExpression("Length", "Params.pad7_length")

# Sketch on XY plane
sketch10 = body.newObject("Sketcher::SketchObject", "Sketch009")
sketch10.AttachmentSupport = (doc.getObject("XY_Plane"), [""])
sketch10.MapMode = "FlatFace"
sketch10.AttachmentOffset = App.Placement(App.Vector(0, 0, 96 * 25.4), App.Rotation())
add_polygon(sketch10, [(5486.4, -914.4), (5486.4, 914.4), (5334, 914.4), (5334, -914.4)])  # lines 0-3
sketch10.addConstraint([
    Sketcher.Constraint("Vertical", 0),
    Sketcher.Constraint("Horizontal", 1),
    Sketcher.Constraint("Vertical", 2),
    Sketcher.Constraint("Horizontal", 3),
    Sketcher.Constraint("DistanceX", 1, 2, 1, 1, Q("6 in")),
    Sketcher.Constraint("DistanceY", 0, 1, 0, 2, Q("72 in")),
    Sketcher.Constraint("DistanceX", -1, 1, 0, 2, Q("216 in")),
    Sketcher.Constraint("DistanceY", -1, 1, 0, 2, Q("36 in")),
])
sketch10.setExpression("Constraints[8]", "Params.sketch10_width")
sketch10.setExpression("Constraints[9]", "Params.sketch10_height")
pocket3 = body.newObject("PartDesign::Pocket", "Pocket002")
pocket3.Profile = sketch10
pocket3.setExpression("Length", "Params.pocket3_length")

# Sketch on XY plane
sketch11 = body.newObject("Sketcher::SketchObject", "Sketch010")
sketch11.AttachmentSupport = (doc.getObject("XY_Plane"), [""])
sketch11.MapMode = "FlatFace"
sketch11.AttachmentOffset = App.Placement(App.Vector(0, 0, 96 * 25.4), App.Rotation())
add_polygon(sketch11, [(-5486.4, -457.2), (-5334, -457.2), (-5334, 457.2), (-5486.4, 457.2), (-5486.4, 609.6), (-5943.6, 609.6), (-5943.6, -609.6), (-5486.4, -609.6)])  # lines 0-7
sketch11.addConstraint([
    Sketcher.Constraint("Horizontal", 0),
    Sketcher.Constraint("Vertical", 1),
    Sketcher.Constraint("Horizontal", 2),
    Sketcher.Constraint("Vertical", 3),
    Sketcher.Constraint("Horizontal", 4),
    Sketcher.Constraint("Vertical", 5),
    Sketcher.Constraint("Horizontal", 6),
    Sketcher.Constraint("Vertical", 7),
    Sketcher.Constraint("Symmetric", 3, 2, 6, 2, -1),
    Sketcher.Constraint("Equal", 2, 3),
    Sketcher.Constraint("Equal", 3, 7),
    Sketcher.Constraint("DistanceX", 0, 1, 0, 2, Q("6 in")),
    Sketcher.Constraint("DistanceX", 4, 2, 4, 1, Q("18 in")),
    Sketcher.Constraint("DistanceY", 1, 1, 1, 2, Q("36 in")),
    Sketcher.Constraint("DistanceX", 0, 2, -1, 1, Q("210 in")),
])
sketch11.setExpression("Constraints[19]", "Params.sketch11_width")
sketch11.setExpression("Constraints[20]", "Params.sketch11_width2")
sketch11.setExpression("Constraints[21]", "Params.sketch11_height")
pocket4 = body.newObject("PartDesign::Pocket", "Pocket003")
pocket4.Profile = sketch11
pocket4.setExpression("Length", "Params.pocket4_length")

# Sketch on XZ plane
sketch12 = body.newObject("Sketcher::SketchObject", "Sketch011")
sketch12.AttachmentSupport = (doc.getObject("XZ_Plane"), [""])
sketch12.MapMode = "FlatFace"
sketch12.AttachmentOffset = App.Placement(App.Vector(0, 0, -18 * 25.4), App.Rotation())
add_polygon(sketch12, [(-5334, 2235.2), (-5334, 2438.4), (-5486.4, 2438.4), (-5486.4, 2235.2)])  # lines 0-3
sketch12.addConstraint([
    Sketcher.Constraint("Vertical", 0),
    Sketcher.Constraint("Horizontal", 1),
    Sketcher.Constraint("Vertical", 2),
    Sketcher.Constraint("Horizontal", 3),
    Sketcher.Constraint("DistanceX", 1, 2, 1, 1, Q("6 in")),
    Sketcher.Constraint("DistanceY", 0, 1, 0, 2, Q("8 in")),
    Sketcher.Constraint("DistanceX", 0, 2, -1, 1, Q("210 in")),
    Sketcher.Constraint("DistanceY", -1, 1, 0, 2, Q("96 in")),
])
sketch12.setExpression("Constraints[8]", "Params.sketch12_width")
sketch12.setExpression("Constraints[9]", "Params.sketch12_height")
pad8 = body.newObject("PartDesign::Pad", "Pad007")
pad8.Profile = sketch12
pad8.setExpression("Length", "Params.pad8_length")

# Sketch on XY plane
sketch13 = body.newObject("Sketcher::SketchObject", "Sketch012")
sketch13.AttachmentSupport = (doc.getObject("XY_Plane"), [""])
sketch13.MapMode = "FlatFace"
add_polygon(sketch13, [(5549.9, -673.1), (5118.1, -241.3), (5118.1, -673.1)])  # lines 0-2
add_polygon(sketch13, [(5549.9, 241.3), (5118.1, 673.1), (5118.1, 241.3)])  # lines 3-5
sketch13.addConstraint([
    Sketcher.Constraint("Vertical", 1),
    Sketcher.Constraint("Horizontal", 2),
    Sketcher.Constraint("Vertical", 4),
    Sketcher.Constraint("Horizontal", 5),
    Sketcher.Constraint("Symmetric", 1, 2, 3, 2, -1),
    Sketcher.Constraint("Parallel", 0, 3),
    Sketcher.Constraint("Vertical", 2, 2, 5, 2),
    Sketcher.Constraint("Equal", 5, 1),
    Sketcher.Constraint("DistanceX", 2, 1, 2, 2, Q("17 in")),
    Sketcher.Constraint("DistanceY", 0, 2, 3, 2, Q("36 in")),
    Sketcher.Constraint("DistanceX", -1, 1, 0, 2, Q("201.5 in")),
])
sketch13.setExpression("Constraints[14]", "Params.sketch13_width")
pocket5 = body.newObject("PartDesign::Pocket", "Pocket004")
pocket5.Profile = sketch13
pocket5.setExpression("Length", "Params.pocket5_length")
pocket5.Reversed = True

# Sketch on XY plane
sketch14 = body.newObject("Sketcher::SketchObject", "Sketch013")
sketch14.AttachmentSupport = (doc.getObject("XY_Plane"), [""])
sketch14.MapMode = "FlatFace"
add_polygon(sketch14, [(5334, 0), (5486.4, 0), (5486.4, 914.4), (5334, 914.4)])  # lines 0-3
sketch14.addConstraint([
    Sketcher.Constraint("Horizontal", 0),
    Sketcher.Constraint("Vertical", 1),
    Sketcher.Constraint("Horizontal", 2),
    Sketcher.Constraint("Vertical", 3),
    Sketcher.Constraint("PointOnObject", 0, 2, -1),
    Sketcher.Constraint("DistanceX", 0, 1, 0, 2, Q("6 in")),
    Sketcher.Constraint("DistanceY", 1, 1, 1, 2, Q("36 in")),
    Sketcher.Constraint("DistanceX", -1, 1, 0, 2, Q("216 in")),
])
sketch14.setExpression("Constraints[9]", "Params.sketch14_width")
sketch14.setExpression("Constraints[10]", "Params.sketch14_height")
pad9 = body.newObject("PartDesign::Pad", "Pad008")
pad9.Profile = sketch14
pad9.setExpression("Length", "Params.pad9_length")

# Sketch on XY plane
sketch15 = body.newObject("Sketcher::SketchObject", "Sketch014")
sketch15.AttachmentSupport = (doc.getObject("XY_Plane"), [""])
sketch15.MapMode = "FlatFace"
add_polygon(sketch15, [(5943.6, 1371.6), (5486.4, 1371.6), (5486.4, -1371.6), (5943.6, -1371.6)])  # lines 0-3
sketch15.addConstraint([
    Sketcher.Constraint("Horizontal", 0),
    Sketcher.Constraint("Vertical", 1),
    Sketcher.Constraint("Horizontal", 2),
    Sketcher.Constraint("Vertical", 3),
    Sketcher.Constraint("DistanceX", 0, 2, 0, 1, Q("18 in")),
    Sketcher.Constraint("DistanceY", 1, 2, 1, 1, Q("108 in")),
    Sketcher.Constraint("DistanceX", -1, 1, 0, 2, Q("216 in")),
    Sketcher.Constraint("DistanceY", -1, 1, 0, 2, Q("54 in")),
])
sketch15.setExpression("Constraints[8]", "Params.sketch15_width")
sketch15.setExpression("Constraints[9]", "Params.sketch15_height")
pocket6 = body.newObject("PartDesign::Pocket", "Pocket005")
pocket6.Profile = sketch15
pocket6.setExpression("Length", "Params.pocket6_length")

# Sketch on XY plane
sketch16 = body.newObject("Sketcher::SketchObject", "Sketch015")
sketch16.AttachmentSupport = (doc.getObject("XY_Plane"), [""])
sketch16.MapMode = "FlatFace"
add_polygon(sketch16, [(-5334, 609.6), (-5486.4, 609.6), (-5486.4, 457.2), (-5943.6, 609.6), (-5943.6, -609.6), (-5334, -609.6)])  # lines 0-5
sketch16.addConstraint([
    Sketcher.Constraint("Horizontal", 0),
    Sketcher.Constraint("Vertical", 1),
    Sketcher.Constraint("Vertical", 3),
    Sketcher.Constraint("Horizontal", 4),
    Sketcher.Constraint("Vertical", 5),
    Sketcher.Constraint("Horizontal", 0, 2, 2, 2),
    Sketcher.Constraint("Equal", 0, 1),
    Sketcher.Constraint("DistanceX", 0, 2, 0, 1, Q("6 in")),
    Sketcher.Constraint("DistanceX", 4, 1, 4, 2, Q("24 in")),
    Sketcher.Constraint("DistanceY", -1, 1, 0, 2, Q("24 in")),
    Sketcher.Constraint("DistanceY", 3, 2, -1, 1, Q("24 in")),
    Sketcher.Constraint("DistanceX", 0, 2, -1, 1, Q("216 in")),
])
sketch16.setExpression("Constraints[13]", "Params.sketch16_width")
sketch16.setExpression("Constraints[14]", "Params.sketch16_width2")
pocket7 = body.newObject("PartDesign::Pocket", "Pocket006")
pocket7.Profile = sketch16
pocket7.setExpression("Length", "Params.pocket7_length")

doc.recompute()
